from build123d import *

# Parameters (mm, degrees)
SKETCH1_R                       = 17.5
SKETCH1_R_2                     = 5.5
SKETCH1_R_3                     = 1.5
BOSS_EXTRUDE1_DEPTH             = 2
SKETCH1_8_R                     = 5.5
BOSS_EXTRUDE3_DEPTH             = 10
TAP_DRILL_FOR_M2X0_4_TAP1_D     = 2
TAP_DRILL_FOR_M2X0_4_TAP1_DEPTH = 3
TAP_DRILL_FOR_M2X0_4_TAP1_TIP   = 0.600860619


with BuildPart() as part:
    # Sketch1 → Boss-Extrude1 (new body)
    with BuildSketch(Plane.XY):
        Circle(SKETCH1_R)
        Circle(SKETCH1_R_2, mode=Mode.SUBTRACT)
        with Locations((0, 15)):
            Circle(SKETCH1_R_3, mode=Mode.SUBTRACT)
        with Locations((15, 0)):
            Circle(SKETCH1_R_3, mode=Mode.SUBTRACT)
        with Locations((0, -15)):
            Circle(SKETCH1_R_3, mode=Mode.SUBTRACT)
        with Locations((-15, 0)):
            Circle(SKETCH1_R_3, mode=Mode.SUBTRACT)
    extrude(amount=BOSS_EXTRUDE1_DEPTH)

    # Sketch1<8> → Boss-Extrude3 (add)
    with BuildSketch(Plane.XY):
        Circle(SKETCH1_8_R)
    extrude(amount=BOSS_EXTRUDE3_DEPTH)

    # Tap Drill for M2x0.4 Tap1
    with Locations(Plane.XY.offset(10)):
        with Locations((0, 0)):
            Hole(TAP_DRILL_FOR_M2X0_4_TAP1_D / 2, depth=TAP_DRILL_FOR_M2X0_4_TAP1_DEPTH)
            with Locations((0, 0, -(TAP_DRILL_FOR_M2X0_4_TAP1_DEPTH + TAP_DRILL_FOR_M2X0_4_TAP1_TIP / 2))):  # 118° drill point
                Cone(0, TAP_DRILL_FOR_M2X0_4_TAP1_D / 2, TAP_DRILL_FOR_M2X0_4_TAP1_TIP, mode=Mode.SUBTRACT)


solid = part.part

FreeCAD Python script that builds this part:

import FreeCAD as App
import Part
import Sketcher

doc = App.newDocument("Part")
params = doc.addObject("Spreadsheet::Sheet", "Params")
for row, (alias, value) in enumerate([
    ("sketch1_diameter", "35 mm"),
    ("sketch1_diameter2", "3 mm"),
    ("sketch1_diameter3", "11 mm"),
    ("pad1_length", "2 mm"),
    ("sketch2_diameter", "11 mm"),
    ("pad2_length", "10 mm"),
    ("sketch3_diameter", "2 mm"),
    ("hole_diameter", "2 mm"),
    ("hole_depth", "3 mm"),
], start=1):
    params.set(f"A{row}", alias)
    params.set(f"B{row}", "=" + value)
    params.setAlias(f"B{row}", alias)

body = doc.addObject("PartDesign::Body", "Body")

# Sketch on XY plane
sketch1 = doc.addObject("Sketcher::SketchObject", "Sketch")
body.addObject(sketch1)
sketch1.AttachmentSupport = (doc.XY_Plane, [""])
sketch1.MapMode = "FlatFace"
sketch1.addGeometry([
    Part.Circle(App.Vector(0, 0, 0), App.Vector(0, 0, 1), 17.5),  # 0
    Part.Circle(App.Vector(0, -15, 0), App.Vector(0, 0, 1), 1.5),  # 1
    Part.Circle(App.Vector(-15, 0, 0), App.Vector(0, 0, 1), 1.5),  # 2
    Part.Circle(App.Vector(0, 0, 0), App.Vector(0, 0, 1), 5.5),  # 3
    Part.Circle(App.Vector(15, 0, 0), App.Vector(0, 0, 1), 1.5),  # 4
    Part.Circle(App.Vector(0, 15, 0), App.Vector(0, 0, 1), 1.5),  # 5
], False)
sketch1.addConstraint([
    Sketcher.Constraint("Coincident", 0, 3, -1, 1),
    Sketcher.Constraint("Coincident", 3, 3, -1, 1),
    Sketcher.Constraint("Equal", 1, 2),
    Sketcher.Constraint("Equal", 2, 4),
    Sketcher.Constraint("Equal", 4, 5),
    Sketcher.Constraint("Symmetric", 2, 3, 4, 3, -1, 1),
    Sketcher.Constraint("Symmetric", 1, 3, 5, 3, -1, 1),
    Sketcher.Constraint("PointOnObject", 1, 3, -2),
    Sketcher.Constraint("PointOnObject", 2, 3, -1),
    Sketcher.Constraint("Diameter", 0, 35.0),
    Sketcher.Constraint("Diameter", 1, 3.0),
    Sketcher.Constraint("Diameter", 3, 11.0),
    Sketcher.Constraint("DistanceY", 1, 3, -1, 1, 15.0),
    Sketcher.Constraint("DistanceX", 2, 3, -1, 1, 15.0),
])
sketch1.setExpression("Constraints[9]", "Params.sketch1_diameter")
sketch1.setExpression("Constraints[10]", "Params.sketch1_diameter2")
sketch1.setExpression("Constraints[11]", "Params.sketch1_diameter3")
pad1 = doc.addObject("PartDesign::Pad", "Pad")
body.addObject(pad1)
pad1.Profile = sketch1
pad1.setExpression("Length", "Params.pad1_length")

# Sketch on XY plane
sketch2 = doc.addObject("Sketcher::SketchObject", "Sketch001")
body.addObject(sketch2)
sketch2.AttachmentSupport = (doc.XY_Plane, [""])
sketch2.MapMode = "FlatFace"
sketch2.addGeometry(Part.Circle(App.Vector(0, 0, 0), App.Vector(0, 0, 1), 5.5), False)
sketch2.addConstraint([
    Sketcher.Constraint("Coincident", 0, 3, -1, 1),
    Sketcher.Constraint("Diameter", 0, 11.0),
])
sketch2.setExpression("Constraints[1]", "Params.sketch2_diameter")
pad2 = doc.addObject("PartDesign::Pad", "Pad001")
body.addObject(pad2)
pad2.Profile = sketch2
pad2.setExpression("Length", "Params.pad2_length")

# Sketch on XY plane
sketch3 = doc.addObject("Sketcher::SketchObject", "Sketch002")
body.addObject(sketch3)
sketch3.AttachmentSupport = (doc.XY_Plane, [""])
sketch3.MapMode = "FlatFace"
sketch3.AttachmentOffset = App.Placement(App.Vector(0, 0, 10), App.Rotation())
sketch3.addGeometry(Part.Circle(App.Vector(0, 0, 0), App.Vector(0, 0, 1), 1), False)
sketch3.addConstraint([
    Sketcher.Constraint("Coincident", 0, 3, -1, 1),
    Sketcher.Constraint("Diameter", 0, 2.0),
])
sketch3.setExpression("Constraints[1]", "Params.sketch3_diameter")
doc.recompute()
hole = doc.addObject("PartDesign::Hole", "Hole")
body.addObject(hole)
hole.Profile = sketch3
hole.ThreadType = "None"
hole.setExpression("Diameter", "Params.hole_diameter")
hole.DepthType = "Dimension"
hole.setExpression("Depth", "Params.hole_depth")
hole.DrillPoint = "Angled"
hole.DrillPointAngle = 118

doc.recompute()
